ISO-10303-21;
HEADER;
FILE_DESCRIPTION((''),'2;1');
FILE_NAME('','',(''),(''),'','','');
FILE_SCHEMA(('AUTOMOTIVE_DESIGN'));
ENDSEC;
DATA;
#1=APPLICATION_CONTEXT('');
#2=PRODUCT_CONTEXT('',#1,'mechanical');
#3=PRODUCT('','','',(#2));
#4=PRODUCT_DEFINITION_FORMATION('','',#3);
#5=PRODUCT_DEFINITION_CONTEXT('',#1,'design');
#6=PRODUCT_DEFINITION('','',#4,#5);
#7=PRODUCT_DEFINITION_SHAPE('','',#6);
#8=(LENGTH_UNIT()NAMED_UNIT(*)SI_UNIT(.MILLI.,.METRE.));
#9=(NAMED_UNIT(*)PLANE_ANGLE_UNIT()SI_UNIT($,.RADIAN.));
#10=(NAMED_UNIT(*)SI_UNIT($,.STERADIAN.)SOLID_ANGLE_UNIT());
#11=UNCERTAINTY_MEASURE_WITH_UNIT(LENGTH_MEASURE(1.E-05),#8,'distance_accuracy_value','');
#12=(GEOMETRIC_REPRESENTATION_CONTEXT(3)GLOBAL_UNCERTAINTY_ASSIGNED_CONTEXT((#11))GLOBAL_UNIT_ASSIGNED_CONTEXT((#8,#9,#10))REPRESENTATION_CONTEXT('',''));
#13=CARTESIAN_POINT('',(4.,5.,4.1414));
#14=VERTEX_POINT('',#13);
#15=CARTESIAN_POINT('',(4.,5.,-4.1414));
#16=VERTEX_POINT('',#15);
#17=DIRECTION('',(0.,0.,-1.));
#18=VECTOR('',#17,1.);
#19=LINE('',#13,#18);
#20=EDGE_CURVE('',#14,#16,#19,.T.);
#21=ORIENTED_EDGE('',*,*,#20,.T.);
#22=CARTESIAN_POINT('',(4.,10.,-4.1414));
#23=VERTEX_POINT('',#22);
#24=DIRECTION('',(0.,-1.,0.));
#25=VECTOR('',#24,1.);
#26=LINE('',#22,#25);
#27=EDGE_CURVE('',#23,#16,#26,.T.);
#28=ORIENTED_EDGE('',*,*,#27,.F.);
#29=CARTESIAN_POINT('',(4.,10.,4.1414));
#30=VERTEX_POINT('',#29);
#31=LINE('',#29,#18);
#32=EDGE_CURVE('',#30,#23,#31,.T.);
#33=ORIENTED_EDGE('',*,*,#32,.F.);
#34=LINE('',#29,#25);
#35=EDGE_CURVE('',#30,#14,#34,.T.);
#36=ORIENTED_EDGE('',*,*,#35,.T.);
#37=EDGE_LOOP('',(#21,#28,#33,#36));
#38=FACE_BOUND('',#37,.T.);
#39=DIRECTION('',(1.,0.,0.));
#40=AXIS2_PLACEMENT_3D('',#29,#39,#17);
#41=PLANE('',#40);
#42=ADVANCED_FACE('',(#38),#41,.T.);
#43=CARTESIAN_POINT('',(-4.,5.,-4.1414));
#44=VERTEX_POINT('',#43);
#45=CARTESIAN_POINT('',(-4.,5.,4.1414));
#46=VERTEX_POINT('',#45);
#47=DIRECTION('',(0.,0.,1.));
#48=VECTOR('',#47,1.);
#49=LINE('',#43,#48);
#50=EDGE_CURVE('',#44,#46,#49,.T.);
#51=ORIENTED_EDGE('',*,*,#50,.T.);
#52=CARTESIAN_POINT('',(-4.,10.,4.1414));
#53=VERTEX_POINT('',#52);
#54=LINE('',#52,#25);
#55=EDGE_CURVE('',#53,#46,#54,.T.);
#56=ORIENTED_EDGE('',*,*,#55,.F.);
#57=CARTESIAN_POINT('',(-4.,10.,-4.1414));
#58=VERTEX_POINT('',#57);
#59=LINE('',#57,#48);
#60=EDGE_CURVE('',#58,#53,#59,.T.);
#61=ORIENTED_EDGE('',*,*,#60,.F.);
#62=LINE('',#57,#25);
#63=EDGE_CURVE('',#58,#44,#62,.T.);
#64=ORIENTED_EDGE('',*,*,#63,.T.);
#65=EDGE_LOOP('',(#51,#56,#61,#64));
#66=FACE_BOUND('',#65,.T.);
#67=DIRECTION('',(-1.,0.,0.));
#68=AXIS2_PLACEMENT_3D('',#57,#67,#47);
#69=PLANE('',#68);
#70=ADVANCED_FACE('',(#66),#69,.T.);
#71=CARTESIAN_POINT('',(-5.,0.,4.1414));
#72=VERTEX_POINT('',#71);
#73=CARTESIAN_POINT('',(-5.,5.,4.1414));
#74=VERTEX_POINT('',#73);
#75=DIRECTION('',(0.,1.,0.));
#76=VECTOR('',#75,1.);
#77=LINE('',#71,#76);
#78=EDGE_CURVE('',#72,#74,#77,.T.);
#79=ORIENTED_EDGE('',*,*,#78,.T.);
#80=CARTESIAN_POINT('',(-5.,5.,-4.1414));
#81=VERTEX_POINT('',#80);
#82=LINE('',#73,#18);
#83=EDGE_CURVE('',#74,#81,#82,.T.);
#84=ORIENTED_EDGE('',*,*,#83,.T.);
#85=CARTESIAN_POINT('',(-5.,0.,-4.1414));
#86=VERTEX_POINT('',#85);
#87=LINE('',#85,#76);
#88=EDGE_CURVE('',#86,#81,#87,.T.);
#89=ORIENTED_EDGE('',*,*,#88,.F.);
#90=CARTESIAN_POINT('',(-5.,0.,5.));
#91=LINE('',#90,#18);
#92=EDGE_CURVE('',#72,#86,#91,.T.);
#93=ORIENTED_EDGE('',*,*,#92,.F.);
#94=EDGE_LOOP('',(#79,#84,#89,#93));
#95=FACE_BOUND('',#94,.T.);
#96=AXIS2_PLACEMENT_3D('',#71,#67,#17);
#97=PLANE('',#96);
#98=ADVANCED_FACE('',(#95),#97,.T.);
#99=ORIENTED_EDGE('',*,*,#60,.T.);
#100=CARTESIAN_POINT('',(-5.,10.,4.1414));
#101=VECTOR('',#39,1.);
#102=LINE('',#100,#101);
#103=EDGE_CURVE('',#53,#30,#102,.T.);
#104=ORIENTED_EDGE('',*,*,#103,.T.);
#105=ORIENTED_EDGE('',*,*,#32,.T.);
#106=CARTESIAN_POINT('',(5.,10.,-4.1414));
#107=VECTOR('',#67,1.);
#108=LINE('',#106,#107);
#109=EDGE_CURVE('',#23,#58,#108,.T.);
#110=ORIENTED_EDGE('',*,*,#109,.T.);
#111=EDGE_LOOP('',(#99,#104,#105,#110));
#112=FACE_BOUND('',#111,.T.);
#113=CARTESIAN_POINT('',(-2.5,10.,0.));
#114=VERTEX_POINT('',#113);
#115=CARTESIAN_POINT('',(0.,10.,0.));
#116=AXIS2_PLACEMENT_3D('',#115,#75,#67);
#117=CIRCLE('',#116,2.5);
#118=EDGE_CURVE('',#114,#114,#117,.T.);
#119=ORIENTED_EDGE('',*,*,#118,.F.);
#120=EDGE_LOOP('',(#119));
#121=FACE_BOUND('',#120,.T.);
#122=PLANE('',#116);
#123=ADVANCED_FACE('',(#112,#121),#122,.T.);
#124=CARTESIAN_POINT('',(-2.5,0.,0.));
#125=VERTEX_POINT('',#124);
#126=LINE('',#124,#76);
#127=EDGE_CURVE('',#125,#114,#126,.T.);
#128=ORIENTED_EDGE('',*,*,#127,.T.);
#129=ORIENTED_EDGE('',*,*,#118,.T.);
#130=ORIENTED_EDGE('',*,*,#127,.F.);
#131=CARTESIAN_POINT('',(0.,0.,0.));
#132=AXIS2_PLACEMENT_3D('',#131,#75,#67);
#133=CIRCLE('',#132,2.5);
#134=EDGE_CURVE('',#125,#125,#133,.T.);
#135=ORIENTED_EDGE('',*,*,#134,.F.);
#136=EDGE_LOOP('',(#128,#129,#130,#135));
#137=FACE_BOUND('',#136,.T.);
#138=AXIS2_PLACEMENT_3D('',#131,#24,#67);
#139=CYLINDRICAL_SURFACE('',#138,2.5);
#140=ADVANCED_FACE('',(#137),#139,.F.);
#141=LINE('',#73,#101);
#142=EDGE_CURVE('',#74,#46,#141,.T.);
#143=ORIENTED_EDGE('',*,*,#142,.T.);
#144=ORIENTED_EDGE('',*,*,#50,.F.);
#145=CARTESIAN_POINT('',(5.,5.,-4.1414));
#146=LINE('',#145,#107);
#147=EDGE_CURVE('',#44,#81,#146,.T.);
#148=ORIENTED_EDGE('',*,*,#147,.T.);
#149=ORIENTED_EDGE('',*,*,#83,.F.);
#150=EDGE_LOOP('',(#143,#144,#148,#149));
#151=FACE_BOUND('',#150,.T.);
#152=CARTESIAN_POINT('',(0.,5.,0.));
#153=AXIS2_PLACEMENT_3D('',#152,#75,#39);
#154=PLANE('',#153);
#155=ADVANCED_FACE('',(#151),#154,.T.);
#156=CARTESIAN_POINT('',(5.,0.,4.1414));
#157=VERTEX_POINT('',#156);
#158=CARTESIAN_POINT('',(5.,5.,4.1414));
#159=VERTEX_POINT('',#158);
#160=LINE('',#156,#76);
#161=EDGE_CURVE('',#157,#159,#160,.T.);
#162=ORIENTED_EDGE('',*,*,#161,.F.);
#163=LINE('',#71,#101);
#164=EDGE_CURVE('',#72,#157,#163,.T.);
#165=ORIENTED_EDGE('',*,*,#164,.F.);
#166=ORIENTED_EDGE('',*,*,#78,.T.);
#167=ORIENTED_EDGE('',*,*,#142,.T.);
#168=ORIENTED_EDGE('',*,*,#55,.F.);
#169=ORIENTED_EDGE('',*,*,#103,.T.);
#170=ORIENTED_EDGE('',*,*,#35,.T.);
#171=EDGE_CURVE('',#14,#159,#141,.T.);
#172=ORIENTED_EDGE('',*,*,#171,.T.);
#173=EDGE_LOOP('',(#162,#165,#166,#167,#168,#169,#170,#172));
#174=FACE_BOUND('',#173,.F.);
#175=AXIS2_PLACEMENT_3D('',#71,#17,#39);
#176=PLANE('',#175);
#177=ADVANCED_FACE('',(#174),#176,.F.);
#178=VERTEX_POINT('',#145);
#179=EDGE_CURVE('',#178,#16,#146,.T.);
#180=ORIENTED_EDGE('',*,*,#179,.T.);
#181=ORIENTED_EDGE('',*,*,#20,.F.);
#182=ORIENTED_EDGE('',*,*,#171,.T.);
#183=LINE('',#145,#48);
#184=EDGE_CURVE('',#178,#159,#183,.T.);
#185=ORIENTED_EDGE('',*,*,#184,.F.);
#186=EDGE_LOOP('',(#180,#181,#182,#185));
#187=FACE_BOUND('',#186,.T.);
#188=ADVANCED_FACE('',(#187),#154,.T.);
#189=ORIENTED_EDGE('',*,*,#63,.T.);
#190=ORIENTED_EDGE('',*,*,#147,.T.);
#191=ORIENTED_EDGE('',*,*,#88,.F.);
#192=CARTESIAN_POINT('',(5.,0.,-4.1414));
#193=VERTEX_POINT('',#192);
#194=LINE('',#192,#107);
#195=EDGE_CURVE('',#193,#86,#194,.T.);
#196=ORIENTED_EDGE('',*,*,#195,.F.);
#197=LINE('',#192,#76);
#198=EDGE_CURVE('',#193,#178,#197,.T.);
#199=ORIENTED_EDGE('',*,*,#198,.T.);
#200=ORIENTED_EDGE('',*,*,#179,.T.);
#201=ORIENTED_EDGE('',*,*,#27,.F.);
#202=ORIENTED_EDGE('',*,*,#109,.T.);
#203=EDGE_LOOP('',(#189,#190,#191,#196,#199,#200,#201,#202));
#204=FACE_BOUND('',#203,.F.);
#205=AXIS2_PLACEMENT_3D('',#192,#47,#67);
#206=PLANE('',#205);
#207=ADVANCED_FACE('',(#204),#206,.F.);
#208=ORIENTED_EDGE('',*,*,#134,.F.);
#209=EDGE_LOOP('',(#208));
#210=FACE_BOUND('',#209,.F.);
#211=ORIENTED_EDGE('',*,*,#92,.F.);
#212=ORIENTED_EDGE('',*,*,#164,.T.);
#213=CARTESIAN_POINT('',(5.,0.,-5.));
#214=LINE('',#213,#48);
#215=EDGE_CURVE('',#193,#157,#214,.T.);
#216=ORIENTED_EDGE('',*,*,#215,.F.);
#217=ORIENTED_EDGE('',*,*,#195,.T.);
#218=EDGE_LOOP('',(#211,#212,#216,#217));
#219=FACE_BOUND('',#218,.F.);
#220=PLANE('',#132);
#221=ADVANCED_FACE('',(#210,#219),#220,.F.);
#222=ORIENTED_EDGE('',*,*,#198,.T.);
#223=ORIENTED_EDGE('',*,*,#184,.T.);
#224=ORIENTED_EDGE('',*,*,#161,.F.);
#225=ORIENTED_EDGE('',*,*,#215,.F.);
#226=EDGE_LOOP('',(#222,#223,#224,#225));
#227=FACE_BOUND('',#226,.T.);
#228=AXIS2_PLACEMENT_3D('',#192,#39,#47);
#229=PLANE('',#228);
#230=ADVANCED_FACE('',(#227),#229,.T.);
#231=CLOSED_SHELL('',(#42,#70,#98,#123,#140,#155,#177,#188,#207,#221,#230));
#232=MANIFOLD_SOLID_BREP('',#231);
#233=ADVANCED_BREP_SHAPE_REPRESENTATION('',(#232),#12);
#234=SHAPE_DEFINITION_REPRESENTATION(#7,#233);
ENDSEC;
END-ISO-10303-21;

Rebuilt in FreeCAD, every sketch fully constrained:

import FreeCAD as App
import Part
import Sketcher
from FreeCAD import Vector
Q = App.Units.Quantity

doc = App.newDocument("Part")
body = doc.addObject("PartDesign::Body", "Body")

# Sketch on XZ plane
sketch1 = doc.addObject("Sketcher::SketchObject", "Sketch")
body.addObject(sketch1)
sketch1.AttachmentSupport = (doc.XZ_Plane, [""])
sketch1.MapMode = "FlatFace"
sketch1.addGeometry([
    Part.LineSegment(Vector(-5, 4.1414, 0), Vector(5, 4.1414, 0)),  # 0
    Part.LineSegment(Vector(5, 4.1414, 0), Vector(5, -4.1414, 0)),  # 1
    Part.LineSegment(Vector(5, -4.1414, 0), Vector(-5, -4.1414, 0)),  # 2
    Part.LineSegment(Vector(-5, -4.1414, 0), Vector(-5, 4.1414, 0)),  # 3
    Part.Circle(Vector(0, 0, 0), Vector(0, 0, 1), 2.5),  # 4
], False)
sketch1.addConstraint([
    Sketcher.Constraint("Coincident", 0, 2, 1, 1),
    Sketcher.Constraint("Coincident", 1, 2, 2, 1),
    Sketcher.Constraint("Coincident", 2, 2, 3, 1),
    Sketcher.Constraint("Coincident", 3, 2, 0, 1),
    Sketcher.Constraint("Horizontal", 0),
    Sketcher.Constraint("Vertical", 1),
    Sketcher.Constraint("Horizontal", 2),
    Sketcher.Constraint("Vertical", 3),
    Sketcher.Constraint("Coincident", 4, 3, -1, 1),
    Sketcher.Constraint("Symmetric", 0, 2, 2, 2, -1, 1),
    Sketcher.Constraint("Diameter", 4, Q("5 mm")),
    Sketcher.Constraint("DistanceX", 0, 1, 0, 2, Q("10 mm")),
    Sketcher.Constraint("DistanceY", 1, 2, 1, 1, Q("8.2828 mm")),
])
pad1 = doc.addObject("PartDesign::Pad", "Pad")
body.addObject(pad1)
pad1.Profile = sketch1
pad1.Length = 10
pad1.Reversed = True

# Sketch on XZ plane
sketch2 = doc.addObject("Sketcher::SketchObject", "Sketch001")
body.addObject(sketch2)
sketch2.AttachmentSupport = (doc.XZ_Plane, [""])
sketch2.MapMode = "FlatFace"
sketch2.AttachmentOffset = App.Placement(Vector(0, 0, -10), App.Rotation())
sketch2.addGeometry([
    Part.LineSegment(Vector(5, 4.1414, 0), Vector(5, -4.1414, 0)),  # 0
    Part.LineSegment(Vector(5, -4.1414, 0), Vector(4, -4.1414, 0)),  # 1
    Part.LineSegment(Vector(4, -4.1414, 0), Vector(4, 4.1414, 0)),  # 2
    Part.LineSegment(Vector(4, 4.1414, 0), Vector(5, 4.1414, 0)),  # 3
    Part.LineSegment(Vector(-4, 4.1414, 0), Vector(-4, -4.1414, 0)),  # 4
    Part.LineSegment(Vector(-4, -4.1414, 0), Vector(-5, -4.1414, 0)),  # 5
    Part.LineSegment(Vector(-5, -4.1414, 0), Vector(-5, 4.1414, 0)),  # 6
    Part.LineSegment(Vector(-5, 4.1414, 0), Vector(-4, 4.1414, 0)),  # 7
], False)
sketch2.addConstraint([
    Sketcher.Constraint("Coincident", 0, 2, 1, 1),
    Sketcher.Constraint("Coincident", 1, 2, 2, 1),
    Sketcher.Constraint("Coincident", 2, 2, 3, 1),
    Sketcher.Constraint("Coincident", 3, 2, 0, 1),
    Sketcher.Constraint("Coincident", 4, 2, 5, 1),
    Sketcher.Constraint("Coincident", 5, 2, 6, 1),
    Sketcher.Constraint("Coincident", 6, 2, 7, 1),
    Sketcher.Constraint("Coincident", 7, 2, 4, 1),
    Sketcher.Constraint("Vertical", 0),
    Sketcher.Constraint("Horizontal", 1),
    Sketcher.Constraint("Vertical", 2),
    Sketcher.Constraint("Horizontal", 3),
    Sketcher.Constraint("Vertical", 4),
    Sketcher.Constraint("Horizontal", 5),
    Sketcher.Constraint("Vertical", 6),
    Sketcher.Constraint("Horizontal", 7),
    Sketcher.Constraint("Symmetric", 2, 2, 4, 2, -1, 1),
    Sketcher.Constraint("Symmetric", 0, 2, 6, 2, -1, 1),
    Sketcher.Constraint("Horizontal", 1, 2, 4, 2),
    Sketcher.Constraint("DistanceX", 1, 2, 1, 1, Q("1 mm")),
    Sketcher.Constraint("DistanceX", -1, 1, 0, 2, Q("5 mm")),
    Sketcher.Constraint("DistanceY", 0, 2, 0, 1, Q("8.2828 mm")),
])
pocket1 = doc.addObject("PartDesign::Pocket", "Pocket")
body.addObject(pocket1)
pocket1.Profile = sketch2
pocket1.Length = 5
pocket1.Reversed = True

doc.recompute()
